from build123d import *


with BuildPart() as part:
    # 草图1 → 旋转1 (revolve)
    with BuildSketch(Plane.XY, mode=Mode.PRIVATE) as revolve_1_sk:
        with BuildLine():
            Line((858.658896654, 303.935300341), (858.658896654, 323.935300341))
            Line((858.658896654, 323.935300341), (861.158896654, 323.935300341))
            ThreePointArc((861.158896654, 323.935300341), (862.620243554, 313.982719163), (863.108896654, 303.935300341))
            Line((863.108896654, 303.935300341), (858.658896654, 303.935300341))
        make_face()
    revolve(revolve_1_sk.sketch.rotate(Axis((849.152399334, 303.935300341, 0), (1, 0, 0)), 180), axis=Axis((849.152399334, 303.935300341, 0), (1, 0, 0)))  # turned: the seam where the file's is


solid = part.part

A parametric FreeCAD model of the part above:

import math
import FreeCAD as App
import Part
import Sketcher

V = App.Vector
Q = App.Units.Quantity

doc = App.newDocument("Part")
body = doc.addObject("PartDesign::Body", "Body")

# Sketch on XY plane
sketch1 = doc.addObject("Sketcher::SketchObject", "Sketch")
body.addObject(sketch1)
sketch1.AttachmentSupport = (doc.XY_Plane, [""])
sketch1.MapMode = "FlatFace"
sketch1.addGeometry([
    Part.LineSegment(V(858.7, 323.9, 0), V(858.7, 303.9, 0)),
    Part.LineSegment(V(858.7, 303.9, 0), V(863.1, 303.9, 0)),
    Part.ArcOfCircle(Part.Circle(V(759.6, 303.9, 0), V(0, 0, 1), 103.5), math.radians(0), math.radians(11.14)),
    Part.LineSegment(V(861.2, 323.9, 0), V(858.7, 323.9, 0)),
], False)
sketch1.addGeometry(Part.LineSegment(V(759.6, 303.9, 0), V(863.1, 303.9, 0)), True)  # axis
sketch1.addConstraint([
    Sketcher.Constraint("Coincident", 0, 2, 1, 1),
    Sketcher.Constraint("Coincident", 1, 2, 2, 1),
    Sketcher.Constraint("Coincident", 2, 2, 3, 1),
    Sketcher.Constraint("Coincident", 3, 2, 0, 1),
    Sketcher.Constraint("Vertical", 0),
    Sketcher.Constraint("Horizontal", 1),
    Sketcher.Constraint("Horizontal", 3),
    Sketcher.Constraint("Horizontal", 4),
    Sketcher.Constraint("Coincident", 4, 1, 2, 3),
    Sketcher.Constraint("Coincident", 4, 2, 1, 2),
    Sketcher.Constraint("DistanceY", 0, 2, 0, 1, Q("20 mm")),
    Sketcher.Constraint("DistanceX", 3, 2, 3, 1, Q("2.5 mm")),
    Sketcher.Constraint("DistanceX", 1, 1, 1, 2, Q("4.45 mm")),
    Sketcher.Constraint("DistanceY", -1, 1, 2, 3, Q("303.9353 mm")),
    Sketcher.Constraint("DistanceX", -1, 1, 2, 3, Q("759.569794 mm")),
])
revolution = doc.addObject("PartDesign::Revolution", "Revolution")
body.addObject(revolution)
revolution.Profile = sketch1
revolution.ReferenceAxis = (sketch1, ["Axis0"])
revolution.Angle = 360

doc.recompute()
